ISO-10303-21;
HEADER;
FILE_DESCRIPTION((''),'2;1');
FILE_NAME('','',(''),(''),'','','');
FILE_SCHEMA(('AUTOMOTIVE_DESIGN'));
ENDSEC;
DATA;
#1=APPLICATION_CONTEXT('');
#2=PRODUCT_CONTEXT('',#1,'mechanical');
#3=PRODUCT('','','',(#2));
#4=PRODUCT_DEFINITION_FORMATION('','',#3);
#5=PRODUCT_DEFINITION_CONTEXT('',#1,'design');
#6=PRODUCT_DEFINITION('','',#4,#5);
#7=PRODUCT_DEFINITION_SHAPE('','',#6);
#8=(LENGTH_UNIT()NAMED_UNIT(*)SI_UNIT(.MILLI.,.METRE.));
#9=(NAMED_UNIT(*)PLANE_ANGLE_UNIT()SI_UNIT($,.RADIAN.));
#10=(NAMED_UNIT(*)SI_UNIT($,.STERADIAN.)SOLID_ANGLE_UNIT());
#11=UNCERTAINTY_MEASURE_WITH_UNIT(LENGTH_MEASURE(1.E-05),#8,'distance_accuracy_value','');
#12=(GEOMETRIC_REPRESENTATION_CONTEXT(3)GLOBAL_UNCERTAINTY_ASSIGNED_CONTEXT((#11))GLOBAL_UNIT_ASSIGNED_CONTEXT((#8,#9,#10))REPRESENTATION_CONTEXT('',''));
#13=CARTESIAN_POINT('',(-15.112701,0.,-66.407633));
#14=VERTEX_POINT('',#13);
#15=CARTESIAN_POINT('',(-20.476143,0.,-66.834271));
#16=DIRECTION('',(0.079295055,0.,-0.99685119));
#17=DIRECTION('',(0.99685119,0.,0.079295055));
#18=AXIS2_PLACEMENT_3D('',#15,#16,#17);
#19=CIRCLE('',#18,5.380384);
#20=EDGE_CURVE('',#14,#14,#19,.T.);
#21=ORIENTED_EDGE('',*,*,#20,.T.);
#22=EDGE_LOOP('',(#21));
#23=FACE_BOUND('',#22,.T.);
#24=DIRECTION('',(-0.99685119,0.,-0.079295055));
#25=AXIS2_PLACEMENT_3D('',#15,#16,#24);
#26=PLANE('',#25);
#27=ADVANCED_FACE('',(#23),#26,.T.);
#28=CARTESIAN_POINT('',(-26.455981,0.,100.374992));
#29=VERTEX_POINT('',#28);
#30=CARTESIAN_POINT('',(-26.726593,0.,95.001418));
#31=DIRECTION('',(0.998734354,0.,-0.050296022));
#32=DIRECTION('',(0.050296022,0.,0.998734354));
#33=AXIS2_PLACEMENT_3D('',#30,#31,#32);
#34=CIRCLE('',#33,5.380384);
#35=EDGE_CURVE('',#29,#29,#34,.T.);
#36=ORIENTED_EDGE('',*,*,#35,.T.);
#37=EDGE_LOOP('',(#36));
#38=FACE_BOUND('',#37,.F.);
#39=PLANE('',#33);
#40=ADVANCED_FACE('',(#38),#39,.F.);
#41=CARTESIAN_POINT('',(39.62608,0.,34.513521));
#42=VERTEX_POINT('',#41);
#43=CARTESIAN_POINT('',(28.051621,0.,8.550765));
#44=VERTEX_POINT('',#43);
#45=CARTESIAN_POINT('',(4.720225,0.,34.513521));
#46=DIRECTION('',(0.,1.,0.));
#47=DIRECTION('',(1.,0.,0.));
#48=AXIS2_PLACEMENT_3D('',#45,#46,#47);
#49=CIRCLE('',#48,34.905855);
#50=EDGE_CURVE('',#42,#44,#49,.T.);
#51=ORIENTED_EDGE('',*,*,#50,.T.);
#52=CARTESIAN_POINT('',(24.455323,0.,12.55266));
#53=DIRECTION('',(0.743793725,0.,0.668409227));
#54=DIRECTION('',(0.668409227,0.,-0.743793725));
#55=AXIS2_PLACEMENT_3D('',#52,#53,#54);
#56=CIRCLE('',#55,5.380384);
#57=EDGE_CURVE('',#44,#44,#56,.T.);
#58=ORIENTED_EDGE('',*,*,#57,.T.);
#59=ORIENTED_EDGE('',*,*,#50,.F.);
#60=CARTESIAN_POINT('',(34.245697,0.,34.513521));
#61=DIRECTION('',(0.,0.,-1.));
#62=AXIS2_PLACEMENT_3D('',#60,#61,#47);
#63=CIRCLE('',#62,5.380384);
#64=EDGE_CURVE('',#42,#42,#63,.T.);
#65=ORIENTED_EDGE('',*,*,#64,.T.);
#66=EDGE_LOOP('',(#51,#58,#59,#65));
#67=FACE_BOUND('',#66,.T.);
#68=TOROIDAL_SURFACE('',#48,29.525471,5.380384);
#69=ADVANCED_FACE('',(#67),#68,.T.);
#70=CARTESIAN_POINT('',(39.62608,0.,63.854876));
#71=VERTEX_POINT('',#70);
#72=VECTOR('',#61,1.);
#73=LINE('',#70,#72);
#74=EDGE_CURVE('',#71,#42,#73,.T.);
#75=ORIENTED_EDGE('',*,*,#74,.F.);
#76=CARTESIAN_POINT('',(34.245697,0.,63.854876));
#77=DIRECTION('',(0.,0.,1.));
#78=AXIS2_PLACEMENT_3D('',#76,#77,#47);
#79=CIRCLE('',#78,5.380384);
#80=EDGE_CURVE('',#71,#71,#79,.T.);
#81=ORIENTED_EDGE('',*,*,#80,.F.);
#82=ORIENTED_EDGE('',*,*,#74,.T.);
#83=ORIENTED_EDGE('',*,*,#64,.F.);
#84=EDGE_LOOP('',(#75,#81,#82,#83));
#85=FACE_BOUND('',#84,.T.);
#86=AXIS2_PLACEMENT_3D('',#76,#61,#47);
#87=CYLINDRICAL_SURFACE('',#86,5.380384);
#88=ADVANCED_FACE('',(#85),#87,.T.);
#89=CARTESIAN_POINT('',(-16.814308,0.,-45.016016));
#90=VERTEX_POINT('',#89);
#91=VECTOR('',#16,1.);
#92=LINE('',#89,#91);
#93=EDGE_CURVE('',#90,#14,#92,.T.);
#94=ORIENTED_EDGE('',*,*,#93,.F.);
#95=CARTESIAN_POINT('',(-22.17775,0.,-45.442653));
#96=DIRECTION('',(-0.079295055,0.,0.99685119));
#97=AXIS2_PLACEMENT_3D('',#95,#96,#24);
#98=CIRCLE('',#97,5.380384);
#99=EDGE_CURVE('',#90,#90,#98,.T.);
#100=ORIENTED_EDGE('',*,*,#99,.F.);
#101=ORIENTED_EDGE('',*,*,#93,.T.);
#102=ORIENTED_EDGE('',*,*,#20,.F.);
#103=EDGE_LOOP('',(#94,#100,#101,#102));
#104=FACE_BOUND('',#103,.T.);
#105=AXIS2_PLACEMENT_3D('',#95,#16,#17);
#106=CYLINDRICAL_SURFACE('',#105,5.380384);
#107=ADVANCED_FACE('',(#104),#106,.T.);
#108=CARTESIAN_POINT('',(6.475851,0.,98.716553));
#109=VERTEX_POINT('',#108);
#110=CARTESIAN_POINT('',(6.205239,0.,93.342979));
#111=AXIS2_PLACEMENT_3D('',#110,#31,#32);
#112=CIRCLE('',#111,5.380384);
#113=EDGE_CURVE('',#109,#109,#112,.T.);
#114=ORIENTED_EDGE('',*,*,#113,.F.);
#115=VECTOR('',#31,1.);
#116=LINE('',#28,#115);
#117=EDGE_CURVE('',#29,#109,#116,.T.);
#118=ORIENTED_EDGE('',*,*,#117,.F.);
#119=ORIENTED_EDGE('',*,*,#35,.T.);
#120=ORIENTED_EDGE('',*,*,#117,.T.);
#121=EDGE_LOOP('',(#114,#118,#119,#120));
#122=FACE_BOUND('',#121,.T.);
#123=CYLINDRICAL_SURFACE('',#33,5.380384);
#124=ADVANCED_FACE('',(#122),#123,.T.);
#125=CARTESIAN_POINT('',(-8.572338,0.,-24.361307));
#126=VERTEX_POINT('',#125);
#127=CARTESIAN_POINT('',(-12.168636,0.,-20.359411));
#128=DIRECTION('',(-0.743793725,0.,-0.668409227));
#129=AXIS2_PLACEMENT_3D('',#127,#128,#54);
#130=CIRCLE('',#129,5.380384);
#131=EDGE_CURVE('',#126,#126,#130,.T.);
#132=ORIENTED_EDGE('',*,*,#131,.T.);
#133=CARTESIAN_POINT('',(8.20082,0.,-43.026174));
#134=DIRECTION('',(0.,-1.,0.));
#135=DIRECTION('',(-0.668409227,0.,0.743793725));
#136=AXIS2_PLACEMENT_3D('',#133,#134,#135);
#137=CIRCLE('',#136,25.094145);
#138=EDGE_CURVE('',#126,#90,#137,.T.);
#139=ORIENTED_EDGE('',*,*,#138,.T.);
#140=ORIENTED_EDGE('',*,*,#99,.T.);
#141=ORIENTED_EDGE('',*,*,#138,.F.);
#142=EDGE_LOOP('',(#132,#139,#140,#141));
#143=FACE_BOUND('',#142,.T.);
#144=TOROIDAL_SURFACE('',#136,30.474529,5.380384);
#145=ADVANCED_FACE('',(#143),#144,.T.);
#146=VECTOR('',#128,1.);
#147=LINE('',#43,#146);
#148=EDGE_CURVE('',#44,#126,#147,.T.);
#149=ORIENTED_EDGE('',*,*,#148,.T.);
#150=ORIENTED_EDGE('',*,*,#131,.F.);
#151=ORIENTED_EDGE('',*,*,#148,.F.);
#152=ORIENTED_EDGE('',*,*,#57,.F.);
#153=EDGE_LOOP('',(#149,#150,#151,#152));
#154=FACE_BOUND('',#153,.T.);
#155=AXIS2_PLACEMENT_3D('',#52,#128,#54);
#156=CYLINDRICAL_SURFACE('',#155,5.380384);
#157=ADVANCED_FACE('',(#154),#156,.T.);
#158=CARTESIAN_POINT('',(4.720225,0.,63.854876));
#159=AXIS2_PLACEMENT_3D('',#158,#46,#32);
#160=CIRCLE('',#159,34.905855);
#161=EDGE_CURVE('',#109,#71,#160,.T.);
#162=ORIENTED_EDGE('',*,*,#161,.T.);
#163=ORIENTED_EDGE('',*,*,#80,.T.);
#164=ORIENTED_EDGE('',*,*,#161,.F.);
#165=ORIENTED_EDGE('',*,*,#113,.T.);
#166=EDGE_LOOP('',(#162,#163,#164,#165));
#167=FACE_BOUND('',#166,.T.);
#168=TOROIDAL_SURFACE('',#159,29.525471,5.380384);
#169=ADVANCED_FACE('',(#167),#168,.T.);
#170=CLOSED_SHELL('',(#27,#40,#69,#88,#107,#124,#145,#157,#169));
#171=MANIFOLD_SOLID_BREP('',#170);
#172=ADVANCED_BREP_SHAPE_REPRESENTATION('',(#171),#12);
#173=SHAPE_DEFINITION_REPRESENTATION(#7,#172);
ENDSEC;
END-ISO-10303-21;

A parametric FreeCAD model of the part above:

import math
import FreeCAD as App
import Part
import Sketcher
from FreeCAD import Vector
Q = App.Units.Quantity

doc = App.newDocument("Part")
body = doc.addObject("PartDesign::Body", "Body")

sketch1 = body.newObject("Sketcher::SketchObject", "Sketch")
sketch1.Placement = App.Placement(Vector(5.154192, 0, -64.795492), App.Rotation(Vector(0.99685119, 0, 0.079295055), Vector(0, -1.000000001, 0), Vector(0.079295055, 0, -0.99685119), "ZXY"))
sketch1.addGeometry(Part.Circle(Vector(-26, 0, 0), Vector(0, 0, 1), 5), False)
sketch1.addConstraint(Sketcher.Constraint("PointOnObject", 0, 3, -1))
sketch1.addConstraint(Sketcher.Constraint("Diameter", 0, Q("10.760768 mm")))
sketch1.addConstraint(Sketcher.Constraint("DistanceX", 0, 3, -1, 1, Q("25.711294 mm")))

sketch2 = body.newObject("Sketcher::SketchObject", "Sketch001")
sketch2.AttachmentSupport = (doc.getObject("XZ_Plane"), [""])
sketch2.MapMode = "FlatFace"
sketch2.addGeometry(Part.LineSegment(Vector(-27, 95, 0), Vector(6, 94, 0)), False)
sketch2.addGeometry(Part.ArcOfCircle(Part.Circle(Vector(5, 64, 0), Vector(0, 0, 1), 30), math.radians(0), math.radians(87)), False)
sketch2.addGeometry(Part.LineSegment(Vector(35, 64, 0), Vector(35, 35, 0)), False)
sketch2.addGeometry(Part.ArcOfCircle(Part.Circle(Vector(5, 35, 0), Vector(0, 0, 1), 30), math.radians(-48), math.radians(0)), False)
sketch2.addGeometry(Part.LineSegment(Vector(25, 12, 0), Vector(-12, -21, 0)), False)
sketch2.addGeometry(Part.ArcOfCircle(Part.Circle(Vector(8, -43, 0), Vector(0, 0, 1), 30), math.radians(132), math.radians(185)), False)
sketch2.addGeometry(Part.LineSegment(Vector(-22, -45, 0), Vector(-20, -67, 0)), False)
sketch2.addConstraint(Sketcher.Constraint("Tangent", 0, 2, 1, 2))
sketch2.addConstraint(Sketcher.Constraint("Tangent", 1, 1, 2, 1))
sketch2.addConstraint(Sketcher.Constraint("Tangent", 2, 2, 3, 2))
sketch2.addConstraint(Sketcher.Constraint("Tangent", 3, 1, 4, 1))
sketch2.addConstraint(Sketcher.Constraint("Tangent", 4, 2, 5, 1))
sketch2.addConstraint(Sketcher.Constraint("Tangent", 5, 2, 6, 1))
sketch2.addConstraint(Sketcher.Constraint("Vertical", 2))
sketch2.addConstraint(Sketcher.Constraint("Equal", 1, 3))
sketch2.addConstraint(Sketcher.Constraint("Equal", 3, 5))
sketch2.addConstraint(Sketcher.Constraint("Radius", 1, Q("30 mm")))
sketch2.addConstraint(Sketcher.Constraint("Distance", 6, Q("21.459188 mm")))
sketch2.addConstraint(Sketcher.Constraint("DistanceY", 2, 2, 2, 1, Q("29.341355 mm")))
sketch2.addConstraint(Sketcher.Constraint("DistanceY", -1, 1, 3, 3, Q("34.513521 mm")))
sketch2.addConstraint(Sketcher.Constraint("DistanceX", -1, 1, 5, 3, Q("8.20082 mm")))
sketch2.addConstraint(Sketcher.Constraint("DistanceY", -1, 1, 3, 1, Q("12.199709 mm")))
sketch2.addConstraint(Sketcher.Constraint("DistanceX", 6, 2, -1, 1, Q("20.003108 mm")))
sketch2.addConstraint(Sketcher.Constraint("DistanceY", 5, 3, 1, 3, Q("106.88105 mm")))
sketch2.addConstraint(Sketcher.Constraint("DistanceX", 0, 1, 1, 3, Q("31.422952 mm")))
sketch2.addConstraint(Sketcher.Constraint("DistanceY", 1, 3, 0, 1, Q("31.62047 mm")))
doc.recompute()

additivepipe = body.newObject("PartDesign::AdditivePipe", "AdditivePipe")
additivepipe.Profile = sketch1
additivepipe.Spine = (sketch2, ["Edge1", "Edge2", "Edge3", "Edge4", "Edge5", "Edge6", "Edge7"])

doc.recompute()
